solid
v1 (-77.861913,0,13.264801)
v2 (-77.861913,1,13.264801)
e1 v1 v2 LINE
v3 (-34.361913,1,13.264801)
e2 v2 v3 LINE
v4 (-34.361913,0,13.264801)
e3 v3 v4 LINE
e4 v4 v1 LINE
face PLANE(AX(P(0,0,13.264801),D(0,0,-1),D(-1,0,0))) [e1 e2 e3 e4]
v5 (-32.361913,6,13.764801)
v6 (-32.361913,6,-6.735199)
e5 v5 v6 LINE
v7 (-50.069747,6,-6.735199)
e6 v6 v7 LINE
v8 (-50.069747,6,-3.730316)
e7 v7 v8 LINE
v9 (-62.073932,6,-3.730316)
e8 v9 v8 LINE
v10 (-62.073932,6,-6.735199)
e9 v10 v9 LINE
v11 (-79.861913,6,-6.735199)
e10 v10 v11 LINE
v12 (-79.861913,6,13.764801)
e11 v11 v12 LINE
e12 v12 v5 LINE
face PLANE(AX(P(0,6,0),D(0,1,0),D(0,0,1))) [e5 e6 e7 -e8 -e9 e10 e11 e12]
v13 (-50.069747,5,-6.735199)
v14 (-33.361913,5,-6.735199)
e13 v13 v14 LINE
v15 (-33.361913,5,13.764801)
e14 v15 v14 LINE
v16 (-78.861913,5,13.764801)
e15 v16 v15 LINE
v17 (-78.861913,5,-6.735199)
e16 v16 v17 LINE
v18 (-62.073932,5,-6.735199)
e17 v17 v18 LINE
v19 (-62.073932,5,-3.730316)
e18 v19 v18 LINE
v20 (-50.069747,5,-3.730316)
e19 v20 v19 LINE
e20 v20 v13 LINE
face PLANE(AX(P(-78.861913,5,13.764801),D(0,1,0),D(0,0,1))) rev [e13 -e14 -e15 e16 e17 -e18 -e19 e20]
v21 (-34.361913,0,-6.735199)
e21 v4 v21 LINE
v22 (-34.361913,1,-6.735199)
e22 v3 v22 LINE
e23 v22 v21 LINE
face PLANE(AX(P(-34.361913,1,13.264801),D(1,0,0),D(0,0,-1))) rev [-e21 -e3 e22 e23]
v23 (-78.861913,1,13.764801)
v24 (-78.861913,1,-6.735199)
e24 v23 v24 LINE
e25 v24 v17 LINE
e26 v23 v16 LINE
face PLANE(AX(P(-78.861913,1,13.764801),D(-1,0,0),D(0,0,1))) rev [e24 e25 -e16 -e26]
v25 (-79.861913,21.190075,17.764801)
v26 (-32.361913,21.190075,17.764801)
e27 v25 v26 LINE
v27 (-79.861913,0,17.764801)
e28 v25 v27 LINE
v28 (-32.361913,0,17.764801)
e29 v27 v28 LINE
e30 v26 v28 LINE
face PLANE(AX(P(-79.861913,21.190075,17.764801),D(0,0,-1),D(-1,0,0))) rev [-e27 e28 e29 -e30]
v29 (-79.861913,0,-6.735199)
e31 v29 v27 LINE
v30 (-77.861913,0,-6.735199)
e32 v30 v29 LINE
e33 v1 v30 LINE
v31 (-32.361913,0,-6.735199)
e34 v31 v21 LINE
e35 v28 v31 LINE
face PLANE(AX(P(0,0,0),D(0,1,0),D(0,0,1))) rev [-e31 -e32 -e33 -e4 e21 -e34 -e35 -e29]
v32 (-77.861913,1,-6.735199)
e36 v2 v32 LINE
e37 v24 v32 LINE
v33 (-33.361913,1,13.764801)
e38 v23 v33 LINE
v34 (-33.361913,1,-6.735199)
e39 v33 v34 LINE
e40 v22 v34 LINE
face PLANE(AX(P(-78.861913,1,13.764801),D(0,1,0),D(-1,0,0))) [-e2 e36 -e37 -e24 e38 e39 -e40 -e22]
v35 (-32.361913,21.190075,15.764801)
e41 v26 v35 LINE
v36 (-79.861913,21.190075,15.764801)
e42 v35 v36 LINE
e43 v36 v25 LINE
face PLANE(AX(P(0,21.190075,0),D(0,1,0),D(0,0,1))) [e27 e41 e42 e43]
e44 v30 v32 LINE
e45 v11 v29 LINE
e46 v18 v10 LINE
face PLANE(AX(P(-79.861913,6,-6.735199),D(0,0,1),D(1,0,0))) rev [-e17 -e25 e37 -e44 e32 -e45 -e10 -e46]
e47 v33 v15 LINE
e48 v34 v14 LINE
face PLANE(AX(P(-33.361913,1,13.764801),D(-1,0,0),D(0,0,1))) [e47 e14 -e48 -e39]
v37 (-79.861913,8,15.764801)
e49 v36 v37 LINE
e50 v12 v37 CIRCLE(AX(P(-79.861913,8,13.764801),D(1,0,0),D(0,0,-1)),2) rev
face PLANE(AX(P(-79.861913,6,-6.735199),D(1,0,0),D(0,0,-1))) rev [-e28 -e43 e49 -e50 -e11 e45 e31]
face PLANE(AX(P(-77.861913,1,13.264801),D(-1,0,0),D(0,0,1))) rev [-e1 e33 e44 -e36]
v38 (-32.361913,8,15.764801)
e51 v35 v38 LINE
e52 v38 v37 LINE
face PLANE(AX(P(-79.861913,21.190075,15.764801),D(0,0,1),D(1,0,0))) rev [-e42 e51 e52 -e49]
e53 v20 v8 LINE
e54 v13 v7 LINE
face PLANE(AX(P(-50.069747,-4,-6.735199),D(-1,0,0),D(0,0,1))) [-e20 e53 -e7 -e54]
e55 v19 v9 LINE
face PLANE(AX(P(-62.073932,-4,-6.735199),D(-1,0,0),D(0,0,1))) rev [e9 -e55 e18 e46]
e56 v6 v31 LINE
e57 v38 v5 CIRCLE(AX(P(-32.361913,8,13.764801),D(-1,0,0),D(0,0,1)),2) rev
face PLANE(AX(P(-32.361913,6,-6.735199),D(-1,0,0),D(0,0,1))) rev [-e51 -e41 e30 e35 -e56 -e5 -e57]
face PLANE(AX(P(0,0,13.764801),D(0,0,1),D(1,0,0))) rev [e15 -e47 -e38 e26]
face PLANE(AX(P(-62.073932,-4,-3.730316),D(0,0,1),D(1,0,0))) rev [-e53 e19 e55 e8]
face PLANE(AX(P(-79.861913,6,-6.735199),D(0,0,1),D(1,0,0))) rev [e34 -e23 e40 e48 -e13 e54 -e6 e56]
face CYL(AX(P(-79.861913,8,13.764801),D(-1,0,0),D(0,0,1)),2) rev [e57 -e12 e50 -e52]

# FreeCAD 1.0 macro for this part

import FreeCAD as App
import Part
import Sketcher


def edges_at(feature, points):
    """Names of the edges that pass closest to the given points."""
    edges = feature.Shape.Edges
    near = lambda p: min(range(len(edges)), key=lambda i: edges[i].distToShape(Part.Vertex(*p))[0])
    return sorted({f"Edge{near(p) + 1}" for p in points})


def add_polygon(sketch, points):
    """Adds a closed chain of lines whose ends are joined by coincident constraints."""
    first, n = sketch.GeometryCount, len(points)
    for a, b in zip(points, points[1:] + points[:1]):
        sketch.addGeometry(Part.LineSegment(App.Vector(*a, 0), App.Vector(*b, 0)), False)
    for i in range(n):
        sketch.addConstraint(Sketcher.Constraint("Coincident", first + i, 2, first + (i + 1) % n, 1))

doc = App.newDocument("Part")
params = doc.addObject("Spreadsheet::Sheet", "Params")
for row, (alias, value) in enumerate([
    ("sketch1_width", "47.5 mm"),
    ("sketch1_height", "22.5 mm"),
    ("pad1_length", "6 mm"),
    ("pocket1_length", "10 mm"),
    ("sketch3_height", "2 mm"),
    ("sketch3_width", "47.5 mm"),
    ("pad2_length", "21.190075 mm"),
    ("fillet_radius", "2 mm"),
    ("sketch4_height", "4 mm"),
    ("sketch4_width", "45.5 mm"),
    ("pocket2_length", "20.5 mm"),
    ("sketch5_height", "1 mm"),
    ("sketch5_width", "43.5 mm"),
    ("pocket3_length", "20 mm"),
], start=1):
    params.set(f"A{row}", alias)
    params.set(f"B{row}", "=" + value)
    params.setAlias(f"B{row}", alias)

body = doc.addObject("PartDesign::Body", "Body")

# Sketch on XZ plane
sketch1 = body.newObject("Sketcher::SketchObject", "Sketch")
sketch1.AttachmentSupport = (doc.getObject("XZ_Plane"), [""])
sketch1.MapMode = "FlatFace"
add_polygon(sketch1, [(-79.861913, -6.735199), (-79.861913, 15.764801), (-32.361913, 15.764801), (-32.361913, -6.735199)])  # lines 0-3
sketch1.addConstraint(Sketcher.Constraint("Vertical", 0))
sketch1.addConstraint(Sketcher.Constraint("Horizontal", 1))
sketch1.addConstraint(Sketcher.Constraint("Vertical", 2))
sketch1.addConstraint(Sketcher.Constraint("Horizontal", 3))
sketch1.addConstraint(Sketcher.Constraint("DistanceX", 1, 1, 1, 2, 47.5))
sketch1.addConstraint(Sketcher.Constraint("DistanceY", 0, 1, 0, 2, 22.5))
sketch1.addConstraint(Sketcher.Constraint("DistanceY", -1, 1, 0, 2, 15.764801))
sketch1.addConstraint(Sketcher.Constraint("DistanceX", 0, 2, -1, 1, 79.861913))
sketch1.setExpression("Constraints[8]", "Params.sketch1_width")
sketch1.setExpression("Constraints[9]", "Params.sketch1_height")
pad1 = body.newObject("PartDesign::Pad", "Pad")
pad1.Profile = sketch1
pad1.setExpression("Length", "Params.pad1_length")
pad1.Reversed = True

# Sketch on XZ plane
sketch2 = body.newObject("Sketcher::SketchObject", "Sketch001")
sketch2.AttachmentSupport = (doc.getObject("XZ_Plane"), [""])
sketch2.MapMode = "FlatFace"
sketch2.AttachmentOffset = App.Placement(App.Vector(0, 0, -6), App.Rotation())
add_polygon(sketch2, [(-62.073932, -6.735199), (-62.073932, -3.730316), (-50.069747, -3.730316), (-50.069747, -6.735199)])  # lines 0-3
sketch2.addConstraint(Sketcher.Constraint("Vertical", 0))
sketch2.addConstraint(Sketcher.Constraint("Horizontal", 1))
sketch2.addConstraint(Sketcher.Constraint("Vertical", 2))
sketch2.addConstraint(Sketcher.Constraint("Horizontal", 3))
sketch2.addConstraint(Sketcher.Constraint("DistanceY", 2, 2, -1, 1, 6.735199))
sketch2.addConstraint(Sketcher.Constraint("DistanceX", 1, 1, 1, 2, 12.004186))
sketch2.addConstraint(Sketcher.Constraint("DistanceY", 0, 1, 0, 2, 3.004884))
sketch2.addConstraint(Sketcher.Constraint("DistanceX", 0, 2, -1, 1, 62.073932))
pocket1 = body.newObject("PartDesign::Pocket", "Pocket")
pocket1.Profile = sketch2
pocket1.setExpression("Length", "Params.pocket1_length")
pocket1.Reversed = True

# Sketch on XZ plane
sketch3 = body.newObject("Sketcher::SketchObject", "Sketch002")
sketch3.AttachmentSupport = (doc.getObject("XZ_Plane"), [""])
sketch3.MapMode = "FlatFace"
add_polygon(sketch3, [(-79.861913, 15.764801), (-79.861913, 17.764801), (-32.361913, 17.764801), (-32.361913, 15.764801)])  # lines 0-3
sketch3.addConstraint(Sketcher.Constraint("Vertical", 0))
sketch3.addConstraint(Sketcher.Constraint("Horizontal", 1))
sketch3.addConstraint(Sketcher.Constraint("Vertical", 2))
sketch3.addConstraint(Sketcher.Constraint("Horizontal", 3))
sketch3.addConstraint(Sketcher.Constraint("DistanceY", 0, 1, 0, 2, 2.0))
sketch3.addConstraint(Sketcher.Constraint("DistanceX", 1, 1, 1, 2, 47.5))
sketch3.addConstraint(Sketcher.Constraint("DistanceY", -1, 1, 0, 2, 17.764801))
sketch3.addConstraint(Sketcher.Constraint("DistanceX", 0, 2, -1, 1, 79.861913))
sketch3.setExpression("Constraints[8]", "Params.sketch3_height")
sketch3.setExpression("Constraints[9]", "Params.sketch3_width")
pad2 = body.newObject("PartDesign::Pad", "Pad001")
pad2.Profile = sketch3
pad2.setExpression("Length", "Params.pad2_length")
pad2.Reversed = True
doc.recompute()

fillet = body.newObject("PartDesign::Fillet", "Fillet")
fillet.Base = (pad2, edges_at(pad2, [(-56.112, 6, 15.765)]))
fillet.setExpression("Radius", "Params.fillet_radius")

# Sketch on XY plane
sketch4 = body.newObject("Sketcher::SketchObject", "Sketch003")
sketch4.AttachmentSupport = (doc.getObject("XY_Plane"), [""])
sketch4.MapMode = "FlatFace"
sketch4.AttachmentOffset = App.Placement(App.Vector(0, 0, -6.735199), App.Rotation())
add_polygon(sketch4, [(-33.361913, 5), (-33.361913, 1), (-78.861913, 1), (-78.861913, 5)])  # lines 0-3
sketch4.addConstraint(Sketcher.Constraint("Vertical", 0))
sketch4.addConstraint(Sketcher.Constraint("Horizontal", 1))
sketch4.addConstraint(Sketcher.Constraint("Vertical", 2))
sketch4.addConstraint(Sketcher.Constraint("Horizontal", 3))
sketch4.addConstraint(Sketcher.Constraint("DistanceY", 0, 2, 0, 1, 4.0))
sketch4.addConstraint(Sketcher.Constraint("DistanceX", 1, 2, 1, 1, 45.5))
sketch4.addConstraint(Sketcher.Constraint("DistanceY", -1, 1, 0, 2, 1.0))
sketch4.addConstraint(Sketcher.Constraint("DistanceX", 0, 2, -1, 1, 33.361913))
sketch4.setExpression("Constraints[8]", "Params.sketch4_height")
sketch4.setExpression("Constraints[9]", "Params.sketch4_width")
pocket2 = body.newObject("PartDesign::Pocket", "Pocket001")
pocket2.Profile = sketch4
pocket2.setExpression("Length", "Params.pocket2_length")
pocket2.Reversed = True

# Sketch on XY plane
sketch5 = body.newObject("Sketcher::SketchObject", "Sketch004")
sketch5.AttachmentSupport = (doc.getObject("XY_Plane"), [""])
sketch5.MapMode = "FlatFace"
sketch5.AttachmentOffset = App.Placement(App.Vector(0, 0, -6.735199), App.Rotation())
add_polygon(sketch5, [(-34.361913, 1), (-34.361913, 0), (-77.861913, 0), (-77.861913, 1)])  # lines 0-3
sketch5.addConstraint(Sketcher.Constraint("Vertical", 0))
sketch5.addConstraint(Sketcher.Constraint("Horizontal", 1))
sketch5.addConstraint(Sketcher.Constraint("Vertical", 2))
sketch5.addConstraint(Sketcher.Constraint("Horizontal", 3))
sketch5.addConstraint(Sketcher.Constraint("PointOnObject", 0, 2, -1))
sketch5.addConstraint(Sketcher.Constraint("DistanceY", 0, 2, 0, 1, 1.0))
sketch5.addConstraint(Sketcher.Constraint("DistanceX", 1, 2, 1, 1, 43.5))
sketch5.addConstraint(Sketcher.Constraint("DistanceX", 0, 2, -1, 1, 34.361913))
sketch5.setExpression("Constraints[9]", "Params.sketch5_height")
sketch5.setExpression("Constraints[10]", "Params.sketch5_width")
pocket3 = body.newObject("PartDesign::Pocket", "Pocket002")
pocket3.Profile = sketch5
pocket3.setExpression("Length", "Params.pocket3_length")
pocket3.Reversed = True

doc.recompute()
